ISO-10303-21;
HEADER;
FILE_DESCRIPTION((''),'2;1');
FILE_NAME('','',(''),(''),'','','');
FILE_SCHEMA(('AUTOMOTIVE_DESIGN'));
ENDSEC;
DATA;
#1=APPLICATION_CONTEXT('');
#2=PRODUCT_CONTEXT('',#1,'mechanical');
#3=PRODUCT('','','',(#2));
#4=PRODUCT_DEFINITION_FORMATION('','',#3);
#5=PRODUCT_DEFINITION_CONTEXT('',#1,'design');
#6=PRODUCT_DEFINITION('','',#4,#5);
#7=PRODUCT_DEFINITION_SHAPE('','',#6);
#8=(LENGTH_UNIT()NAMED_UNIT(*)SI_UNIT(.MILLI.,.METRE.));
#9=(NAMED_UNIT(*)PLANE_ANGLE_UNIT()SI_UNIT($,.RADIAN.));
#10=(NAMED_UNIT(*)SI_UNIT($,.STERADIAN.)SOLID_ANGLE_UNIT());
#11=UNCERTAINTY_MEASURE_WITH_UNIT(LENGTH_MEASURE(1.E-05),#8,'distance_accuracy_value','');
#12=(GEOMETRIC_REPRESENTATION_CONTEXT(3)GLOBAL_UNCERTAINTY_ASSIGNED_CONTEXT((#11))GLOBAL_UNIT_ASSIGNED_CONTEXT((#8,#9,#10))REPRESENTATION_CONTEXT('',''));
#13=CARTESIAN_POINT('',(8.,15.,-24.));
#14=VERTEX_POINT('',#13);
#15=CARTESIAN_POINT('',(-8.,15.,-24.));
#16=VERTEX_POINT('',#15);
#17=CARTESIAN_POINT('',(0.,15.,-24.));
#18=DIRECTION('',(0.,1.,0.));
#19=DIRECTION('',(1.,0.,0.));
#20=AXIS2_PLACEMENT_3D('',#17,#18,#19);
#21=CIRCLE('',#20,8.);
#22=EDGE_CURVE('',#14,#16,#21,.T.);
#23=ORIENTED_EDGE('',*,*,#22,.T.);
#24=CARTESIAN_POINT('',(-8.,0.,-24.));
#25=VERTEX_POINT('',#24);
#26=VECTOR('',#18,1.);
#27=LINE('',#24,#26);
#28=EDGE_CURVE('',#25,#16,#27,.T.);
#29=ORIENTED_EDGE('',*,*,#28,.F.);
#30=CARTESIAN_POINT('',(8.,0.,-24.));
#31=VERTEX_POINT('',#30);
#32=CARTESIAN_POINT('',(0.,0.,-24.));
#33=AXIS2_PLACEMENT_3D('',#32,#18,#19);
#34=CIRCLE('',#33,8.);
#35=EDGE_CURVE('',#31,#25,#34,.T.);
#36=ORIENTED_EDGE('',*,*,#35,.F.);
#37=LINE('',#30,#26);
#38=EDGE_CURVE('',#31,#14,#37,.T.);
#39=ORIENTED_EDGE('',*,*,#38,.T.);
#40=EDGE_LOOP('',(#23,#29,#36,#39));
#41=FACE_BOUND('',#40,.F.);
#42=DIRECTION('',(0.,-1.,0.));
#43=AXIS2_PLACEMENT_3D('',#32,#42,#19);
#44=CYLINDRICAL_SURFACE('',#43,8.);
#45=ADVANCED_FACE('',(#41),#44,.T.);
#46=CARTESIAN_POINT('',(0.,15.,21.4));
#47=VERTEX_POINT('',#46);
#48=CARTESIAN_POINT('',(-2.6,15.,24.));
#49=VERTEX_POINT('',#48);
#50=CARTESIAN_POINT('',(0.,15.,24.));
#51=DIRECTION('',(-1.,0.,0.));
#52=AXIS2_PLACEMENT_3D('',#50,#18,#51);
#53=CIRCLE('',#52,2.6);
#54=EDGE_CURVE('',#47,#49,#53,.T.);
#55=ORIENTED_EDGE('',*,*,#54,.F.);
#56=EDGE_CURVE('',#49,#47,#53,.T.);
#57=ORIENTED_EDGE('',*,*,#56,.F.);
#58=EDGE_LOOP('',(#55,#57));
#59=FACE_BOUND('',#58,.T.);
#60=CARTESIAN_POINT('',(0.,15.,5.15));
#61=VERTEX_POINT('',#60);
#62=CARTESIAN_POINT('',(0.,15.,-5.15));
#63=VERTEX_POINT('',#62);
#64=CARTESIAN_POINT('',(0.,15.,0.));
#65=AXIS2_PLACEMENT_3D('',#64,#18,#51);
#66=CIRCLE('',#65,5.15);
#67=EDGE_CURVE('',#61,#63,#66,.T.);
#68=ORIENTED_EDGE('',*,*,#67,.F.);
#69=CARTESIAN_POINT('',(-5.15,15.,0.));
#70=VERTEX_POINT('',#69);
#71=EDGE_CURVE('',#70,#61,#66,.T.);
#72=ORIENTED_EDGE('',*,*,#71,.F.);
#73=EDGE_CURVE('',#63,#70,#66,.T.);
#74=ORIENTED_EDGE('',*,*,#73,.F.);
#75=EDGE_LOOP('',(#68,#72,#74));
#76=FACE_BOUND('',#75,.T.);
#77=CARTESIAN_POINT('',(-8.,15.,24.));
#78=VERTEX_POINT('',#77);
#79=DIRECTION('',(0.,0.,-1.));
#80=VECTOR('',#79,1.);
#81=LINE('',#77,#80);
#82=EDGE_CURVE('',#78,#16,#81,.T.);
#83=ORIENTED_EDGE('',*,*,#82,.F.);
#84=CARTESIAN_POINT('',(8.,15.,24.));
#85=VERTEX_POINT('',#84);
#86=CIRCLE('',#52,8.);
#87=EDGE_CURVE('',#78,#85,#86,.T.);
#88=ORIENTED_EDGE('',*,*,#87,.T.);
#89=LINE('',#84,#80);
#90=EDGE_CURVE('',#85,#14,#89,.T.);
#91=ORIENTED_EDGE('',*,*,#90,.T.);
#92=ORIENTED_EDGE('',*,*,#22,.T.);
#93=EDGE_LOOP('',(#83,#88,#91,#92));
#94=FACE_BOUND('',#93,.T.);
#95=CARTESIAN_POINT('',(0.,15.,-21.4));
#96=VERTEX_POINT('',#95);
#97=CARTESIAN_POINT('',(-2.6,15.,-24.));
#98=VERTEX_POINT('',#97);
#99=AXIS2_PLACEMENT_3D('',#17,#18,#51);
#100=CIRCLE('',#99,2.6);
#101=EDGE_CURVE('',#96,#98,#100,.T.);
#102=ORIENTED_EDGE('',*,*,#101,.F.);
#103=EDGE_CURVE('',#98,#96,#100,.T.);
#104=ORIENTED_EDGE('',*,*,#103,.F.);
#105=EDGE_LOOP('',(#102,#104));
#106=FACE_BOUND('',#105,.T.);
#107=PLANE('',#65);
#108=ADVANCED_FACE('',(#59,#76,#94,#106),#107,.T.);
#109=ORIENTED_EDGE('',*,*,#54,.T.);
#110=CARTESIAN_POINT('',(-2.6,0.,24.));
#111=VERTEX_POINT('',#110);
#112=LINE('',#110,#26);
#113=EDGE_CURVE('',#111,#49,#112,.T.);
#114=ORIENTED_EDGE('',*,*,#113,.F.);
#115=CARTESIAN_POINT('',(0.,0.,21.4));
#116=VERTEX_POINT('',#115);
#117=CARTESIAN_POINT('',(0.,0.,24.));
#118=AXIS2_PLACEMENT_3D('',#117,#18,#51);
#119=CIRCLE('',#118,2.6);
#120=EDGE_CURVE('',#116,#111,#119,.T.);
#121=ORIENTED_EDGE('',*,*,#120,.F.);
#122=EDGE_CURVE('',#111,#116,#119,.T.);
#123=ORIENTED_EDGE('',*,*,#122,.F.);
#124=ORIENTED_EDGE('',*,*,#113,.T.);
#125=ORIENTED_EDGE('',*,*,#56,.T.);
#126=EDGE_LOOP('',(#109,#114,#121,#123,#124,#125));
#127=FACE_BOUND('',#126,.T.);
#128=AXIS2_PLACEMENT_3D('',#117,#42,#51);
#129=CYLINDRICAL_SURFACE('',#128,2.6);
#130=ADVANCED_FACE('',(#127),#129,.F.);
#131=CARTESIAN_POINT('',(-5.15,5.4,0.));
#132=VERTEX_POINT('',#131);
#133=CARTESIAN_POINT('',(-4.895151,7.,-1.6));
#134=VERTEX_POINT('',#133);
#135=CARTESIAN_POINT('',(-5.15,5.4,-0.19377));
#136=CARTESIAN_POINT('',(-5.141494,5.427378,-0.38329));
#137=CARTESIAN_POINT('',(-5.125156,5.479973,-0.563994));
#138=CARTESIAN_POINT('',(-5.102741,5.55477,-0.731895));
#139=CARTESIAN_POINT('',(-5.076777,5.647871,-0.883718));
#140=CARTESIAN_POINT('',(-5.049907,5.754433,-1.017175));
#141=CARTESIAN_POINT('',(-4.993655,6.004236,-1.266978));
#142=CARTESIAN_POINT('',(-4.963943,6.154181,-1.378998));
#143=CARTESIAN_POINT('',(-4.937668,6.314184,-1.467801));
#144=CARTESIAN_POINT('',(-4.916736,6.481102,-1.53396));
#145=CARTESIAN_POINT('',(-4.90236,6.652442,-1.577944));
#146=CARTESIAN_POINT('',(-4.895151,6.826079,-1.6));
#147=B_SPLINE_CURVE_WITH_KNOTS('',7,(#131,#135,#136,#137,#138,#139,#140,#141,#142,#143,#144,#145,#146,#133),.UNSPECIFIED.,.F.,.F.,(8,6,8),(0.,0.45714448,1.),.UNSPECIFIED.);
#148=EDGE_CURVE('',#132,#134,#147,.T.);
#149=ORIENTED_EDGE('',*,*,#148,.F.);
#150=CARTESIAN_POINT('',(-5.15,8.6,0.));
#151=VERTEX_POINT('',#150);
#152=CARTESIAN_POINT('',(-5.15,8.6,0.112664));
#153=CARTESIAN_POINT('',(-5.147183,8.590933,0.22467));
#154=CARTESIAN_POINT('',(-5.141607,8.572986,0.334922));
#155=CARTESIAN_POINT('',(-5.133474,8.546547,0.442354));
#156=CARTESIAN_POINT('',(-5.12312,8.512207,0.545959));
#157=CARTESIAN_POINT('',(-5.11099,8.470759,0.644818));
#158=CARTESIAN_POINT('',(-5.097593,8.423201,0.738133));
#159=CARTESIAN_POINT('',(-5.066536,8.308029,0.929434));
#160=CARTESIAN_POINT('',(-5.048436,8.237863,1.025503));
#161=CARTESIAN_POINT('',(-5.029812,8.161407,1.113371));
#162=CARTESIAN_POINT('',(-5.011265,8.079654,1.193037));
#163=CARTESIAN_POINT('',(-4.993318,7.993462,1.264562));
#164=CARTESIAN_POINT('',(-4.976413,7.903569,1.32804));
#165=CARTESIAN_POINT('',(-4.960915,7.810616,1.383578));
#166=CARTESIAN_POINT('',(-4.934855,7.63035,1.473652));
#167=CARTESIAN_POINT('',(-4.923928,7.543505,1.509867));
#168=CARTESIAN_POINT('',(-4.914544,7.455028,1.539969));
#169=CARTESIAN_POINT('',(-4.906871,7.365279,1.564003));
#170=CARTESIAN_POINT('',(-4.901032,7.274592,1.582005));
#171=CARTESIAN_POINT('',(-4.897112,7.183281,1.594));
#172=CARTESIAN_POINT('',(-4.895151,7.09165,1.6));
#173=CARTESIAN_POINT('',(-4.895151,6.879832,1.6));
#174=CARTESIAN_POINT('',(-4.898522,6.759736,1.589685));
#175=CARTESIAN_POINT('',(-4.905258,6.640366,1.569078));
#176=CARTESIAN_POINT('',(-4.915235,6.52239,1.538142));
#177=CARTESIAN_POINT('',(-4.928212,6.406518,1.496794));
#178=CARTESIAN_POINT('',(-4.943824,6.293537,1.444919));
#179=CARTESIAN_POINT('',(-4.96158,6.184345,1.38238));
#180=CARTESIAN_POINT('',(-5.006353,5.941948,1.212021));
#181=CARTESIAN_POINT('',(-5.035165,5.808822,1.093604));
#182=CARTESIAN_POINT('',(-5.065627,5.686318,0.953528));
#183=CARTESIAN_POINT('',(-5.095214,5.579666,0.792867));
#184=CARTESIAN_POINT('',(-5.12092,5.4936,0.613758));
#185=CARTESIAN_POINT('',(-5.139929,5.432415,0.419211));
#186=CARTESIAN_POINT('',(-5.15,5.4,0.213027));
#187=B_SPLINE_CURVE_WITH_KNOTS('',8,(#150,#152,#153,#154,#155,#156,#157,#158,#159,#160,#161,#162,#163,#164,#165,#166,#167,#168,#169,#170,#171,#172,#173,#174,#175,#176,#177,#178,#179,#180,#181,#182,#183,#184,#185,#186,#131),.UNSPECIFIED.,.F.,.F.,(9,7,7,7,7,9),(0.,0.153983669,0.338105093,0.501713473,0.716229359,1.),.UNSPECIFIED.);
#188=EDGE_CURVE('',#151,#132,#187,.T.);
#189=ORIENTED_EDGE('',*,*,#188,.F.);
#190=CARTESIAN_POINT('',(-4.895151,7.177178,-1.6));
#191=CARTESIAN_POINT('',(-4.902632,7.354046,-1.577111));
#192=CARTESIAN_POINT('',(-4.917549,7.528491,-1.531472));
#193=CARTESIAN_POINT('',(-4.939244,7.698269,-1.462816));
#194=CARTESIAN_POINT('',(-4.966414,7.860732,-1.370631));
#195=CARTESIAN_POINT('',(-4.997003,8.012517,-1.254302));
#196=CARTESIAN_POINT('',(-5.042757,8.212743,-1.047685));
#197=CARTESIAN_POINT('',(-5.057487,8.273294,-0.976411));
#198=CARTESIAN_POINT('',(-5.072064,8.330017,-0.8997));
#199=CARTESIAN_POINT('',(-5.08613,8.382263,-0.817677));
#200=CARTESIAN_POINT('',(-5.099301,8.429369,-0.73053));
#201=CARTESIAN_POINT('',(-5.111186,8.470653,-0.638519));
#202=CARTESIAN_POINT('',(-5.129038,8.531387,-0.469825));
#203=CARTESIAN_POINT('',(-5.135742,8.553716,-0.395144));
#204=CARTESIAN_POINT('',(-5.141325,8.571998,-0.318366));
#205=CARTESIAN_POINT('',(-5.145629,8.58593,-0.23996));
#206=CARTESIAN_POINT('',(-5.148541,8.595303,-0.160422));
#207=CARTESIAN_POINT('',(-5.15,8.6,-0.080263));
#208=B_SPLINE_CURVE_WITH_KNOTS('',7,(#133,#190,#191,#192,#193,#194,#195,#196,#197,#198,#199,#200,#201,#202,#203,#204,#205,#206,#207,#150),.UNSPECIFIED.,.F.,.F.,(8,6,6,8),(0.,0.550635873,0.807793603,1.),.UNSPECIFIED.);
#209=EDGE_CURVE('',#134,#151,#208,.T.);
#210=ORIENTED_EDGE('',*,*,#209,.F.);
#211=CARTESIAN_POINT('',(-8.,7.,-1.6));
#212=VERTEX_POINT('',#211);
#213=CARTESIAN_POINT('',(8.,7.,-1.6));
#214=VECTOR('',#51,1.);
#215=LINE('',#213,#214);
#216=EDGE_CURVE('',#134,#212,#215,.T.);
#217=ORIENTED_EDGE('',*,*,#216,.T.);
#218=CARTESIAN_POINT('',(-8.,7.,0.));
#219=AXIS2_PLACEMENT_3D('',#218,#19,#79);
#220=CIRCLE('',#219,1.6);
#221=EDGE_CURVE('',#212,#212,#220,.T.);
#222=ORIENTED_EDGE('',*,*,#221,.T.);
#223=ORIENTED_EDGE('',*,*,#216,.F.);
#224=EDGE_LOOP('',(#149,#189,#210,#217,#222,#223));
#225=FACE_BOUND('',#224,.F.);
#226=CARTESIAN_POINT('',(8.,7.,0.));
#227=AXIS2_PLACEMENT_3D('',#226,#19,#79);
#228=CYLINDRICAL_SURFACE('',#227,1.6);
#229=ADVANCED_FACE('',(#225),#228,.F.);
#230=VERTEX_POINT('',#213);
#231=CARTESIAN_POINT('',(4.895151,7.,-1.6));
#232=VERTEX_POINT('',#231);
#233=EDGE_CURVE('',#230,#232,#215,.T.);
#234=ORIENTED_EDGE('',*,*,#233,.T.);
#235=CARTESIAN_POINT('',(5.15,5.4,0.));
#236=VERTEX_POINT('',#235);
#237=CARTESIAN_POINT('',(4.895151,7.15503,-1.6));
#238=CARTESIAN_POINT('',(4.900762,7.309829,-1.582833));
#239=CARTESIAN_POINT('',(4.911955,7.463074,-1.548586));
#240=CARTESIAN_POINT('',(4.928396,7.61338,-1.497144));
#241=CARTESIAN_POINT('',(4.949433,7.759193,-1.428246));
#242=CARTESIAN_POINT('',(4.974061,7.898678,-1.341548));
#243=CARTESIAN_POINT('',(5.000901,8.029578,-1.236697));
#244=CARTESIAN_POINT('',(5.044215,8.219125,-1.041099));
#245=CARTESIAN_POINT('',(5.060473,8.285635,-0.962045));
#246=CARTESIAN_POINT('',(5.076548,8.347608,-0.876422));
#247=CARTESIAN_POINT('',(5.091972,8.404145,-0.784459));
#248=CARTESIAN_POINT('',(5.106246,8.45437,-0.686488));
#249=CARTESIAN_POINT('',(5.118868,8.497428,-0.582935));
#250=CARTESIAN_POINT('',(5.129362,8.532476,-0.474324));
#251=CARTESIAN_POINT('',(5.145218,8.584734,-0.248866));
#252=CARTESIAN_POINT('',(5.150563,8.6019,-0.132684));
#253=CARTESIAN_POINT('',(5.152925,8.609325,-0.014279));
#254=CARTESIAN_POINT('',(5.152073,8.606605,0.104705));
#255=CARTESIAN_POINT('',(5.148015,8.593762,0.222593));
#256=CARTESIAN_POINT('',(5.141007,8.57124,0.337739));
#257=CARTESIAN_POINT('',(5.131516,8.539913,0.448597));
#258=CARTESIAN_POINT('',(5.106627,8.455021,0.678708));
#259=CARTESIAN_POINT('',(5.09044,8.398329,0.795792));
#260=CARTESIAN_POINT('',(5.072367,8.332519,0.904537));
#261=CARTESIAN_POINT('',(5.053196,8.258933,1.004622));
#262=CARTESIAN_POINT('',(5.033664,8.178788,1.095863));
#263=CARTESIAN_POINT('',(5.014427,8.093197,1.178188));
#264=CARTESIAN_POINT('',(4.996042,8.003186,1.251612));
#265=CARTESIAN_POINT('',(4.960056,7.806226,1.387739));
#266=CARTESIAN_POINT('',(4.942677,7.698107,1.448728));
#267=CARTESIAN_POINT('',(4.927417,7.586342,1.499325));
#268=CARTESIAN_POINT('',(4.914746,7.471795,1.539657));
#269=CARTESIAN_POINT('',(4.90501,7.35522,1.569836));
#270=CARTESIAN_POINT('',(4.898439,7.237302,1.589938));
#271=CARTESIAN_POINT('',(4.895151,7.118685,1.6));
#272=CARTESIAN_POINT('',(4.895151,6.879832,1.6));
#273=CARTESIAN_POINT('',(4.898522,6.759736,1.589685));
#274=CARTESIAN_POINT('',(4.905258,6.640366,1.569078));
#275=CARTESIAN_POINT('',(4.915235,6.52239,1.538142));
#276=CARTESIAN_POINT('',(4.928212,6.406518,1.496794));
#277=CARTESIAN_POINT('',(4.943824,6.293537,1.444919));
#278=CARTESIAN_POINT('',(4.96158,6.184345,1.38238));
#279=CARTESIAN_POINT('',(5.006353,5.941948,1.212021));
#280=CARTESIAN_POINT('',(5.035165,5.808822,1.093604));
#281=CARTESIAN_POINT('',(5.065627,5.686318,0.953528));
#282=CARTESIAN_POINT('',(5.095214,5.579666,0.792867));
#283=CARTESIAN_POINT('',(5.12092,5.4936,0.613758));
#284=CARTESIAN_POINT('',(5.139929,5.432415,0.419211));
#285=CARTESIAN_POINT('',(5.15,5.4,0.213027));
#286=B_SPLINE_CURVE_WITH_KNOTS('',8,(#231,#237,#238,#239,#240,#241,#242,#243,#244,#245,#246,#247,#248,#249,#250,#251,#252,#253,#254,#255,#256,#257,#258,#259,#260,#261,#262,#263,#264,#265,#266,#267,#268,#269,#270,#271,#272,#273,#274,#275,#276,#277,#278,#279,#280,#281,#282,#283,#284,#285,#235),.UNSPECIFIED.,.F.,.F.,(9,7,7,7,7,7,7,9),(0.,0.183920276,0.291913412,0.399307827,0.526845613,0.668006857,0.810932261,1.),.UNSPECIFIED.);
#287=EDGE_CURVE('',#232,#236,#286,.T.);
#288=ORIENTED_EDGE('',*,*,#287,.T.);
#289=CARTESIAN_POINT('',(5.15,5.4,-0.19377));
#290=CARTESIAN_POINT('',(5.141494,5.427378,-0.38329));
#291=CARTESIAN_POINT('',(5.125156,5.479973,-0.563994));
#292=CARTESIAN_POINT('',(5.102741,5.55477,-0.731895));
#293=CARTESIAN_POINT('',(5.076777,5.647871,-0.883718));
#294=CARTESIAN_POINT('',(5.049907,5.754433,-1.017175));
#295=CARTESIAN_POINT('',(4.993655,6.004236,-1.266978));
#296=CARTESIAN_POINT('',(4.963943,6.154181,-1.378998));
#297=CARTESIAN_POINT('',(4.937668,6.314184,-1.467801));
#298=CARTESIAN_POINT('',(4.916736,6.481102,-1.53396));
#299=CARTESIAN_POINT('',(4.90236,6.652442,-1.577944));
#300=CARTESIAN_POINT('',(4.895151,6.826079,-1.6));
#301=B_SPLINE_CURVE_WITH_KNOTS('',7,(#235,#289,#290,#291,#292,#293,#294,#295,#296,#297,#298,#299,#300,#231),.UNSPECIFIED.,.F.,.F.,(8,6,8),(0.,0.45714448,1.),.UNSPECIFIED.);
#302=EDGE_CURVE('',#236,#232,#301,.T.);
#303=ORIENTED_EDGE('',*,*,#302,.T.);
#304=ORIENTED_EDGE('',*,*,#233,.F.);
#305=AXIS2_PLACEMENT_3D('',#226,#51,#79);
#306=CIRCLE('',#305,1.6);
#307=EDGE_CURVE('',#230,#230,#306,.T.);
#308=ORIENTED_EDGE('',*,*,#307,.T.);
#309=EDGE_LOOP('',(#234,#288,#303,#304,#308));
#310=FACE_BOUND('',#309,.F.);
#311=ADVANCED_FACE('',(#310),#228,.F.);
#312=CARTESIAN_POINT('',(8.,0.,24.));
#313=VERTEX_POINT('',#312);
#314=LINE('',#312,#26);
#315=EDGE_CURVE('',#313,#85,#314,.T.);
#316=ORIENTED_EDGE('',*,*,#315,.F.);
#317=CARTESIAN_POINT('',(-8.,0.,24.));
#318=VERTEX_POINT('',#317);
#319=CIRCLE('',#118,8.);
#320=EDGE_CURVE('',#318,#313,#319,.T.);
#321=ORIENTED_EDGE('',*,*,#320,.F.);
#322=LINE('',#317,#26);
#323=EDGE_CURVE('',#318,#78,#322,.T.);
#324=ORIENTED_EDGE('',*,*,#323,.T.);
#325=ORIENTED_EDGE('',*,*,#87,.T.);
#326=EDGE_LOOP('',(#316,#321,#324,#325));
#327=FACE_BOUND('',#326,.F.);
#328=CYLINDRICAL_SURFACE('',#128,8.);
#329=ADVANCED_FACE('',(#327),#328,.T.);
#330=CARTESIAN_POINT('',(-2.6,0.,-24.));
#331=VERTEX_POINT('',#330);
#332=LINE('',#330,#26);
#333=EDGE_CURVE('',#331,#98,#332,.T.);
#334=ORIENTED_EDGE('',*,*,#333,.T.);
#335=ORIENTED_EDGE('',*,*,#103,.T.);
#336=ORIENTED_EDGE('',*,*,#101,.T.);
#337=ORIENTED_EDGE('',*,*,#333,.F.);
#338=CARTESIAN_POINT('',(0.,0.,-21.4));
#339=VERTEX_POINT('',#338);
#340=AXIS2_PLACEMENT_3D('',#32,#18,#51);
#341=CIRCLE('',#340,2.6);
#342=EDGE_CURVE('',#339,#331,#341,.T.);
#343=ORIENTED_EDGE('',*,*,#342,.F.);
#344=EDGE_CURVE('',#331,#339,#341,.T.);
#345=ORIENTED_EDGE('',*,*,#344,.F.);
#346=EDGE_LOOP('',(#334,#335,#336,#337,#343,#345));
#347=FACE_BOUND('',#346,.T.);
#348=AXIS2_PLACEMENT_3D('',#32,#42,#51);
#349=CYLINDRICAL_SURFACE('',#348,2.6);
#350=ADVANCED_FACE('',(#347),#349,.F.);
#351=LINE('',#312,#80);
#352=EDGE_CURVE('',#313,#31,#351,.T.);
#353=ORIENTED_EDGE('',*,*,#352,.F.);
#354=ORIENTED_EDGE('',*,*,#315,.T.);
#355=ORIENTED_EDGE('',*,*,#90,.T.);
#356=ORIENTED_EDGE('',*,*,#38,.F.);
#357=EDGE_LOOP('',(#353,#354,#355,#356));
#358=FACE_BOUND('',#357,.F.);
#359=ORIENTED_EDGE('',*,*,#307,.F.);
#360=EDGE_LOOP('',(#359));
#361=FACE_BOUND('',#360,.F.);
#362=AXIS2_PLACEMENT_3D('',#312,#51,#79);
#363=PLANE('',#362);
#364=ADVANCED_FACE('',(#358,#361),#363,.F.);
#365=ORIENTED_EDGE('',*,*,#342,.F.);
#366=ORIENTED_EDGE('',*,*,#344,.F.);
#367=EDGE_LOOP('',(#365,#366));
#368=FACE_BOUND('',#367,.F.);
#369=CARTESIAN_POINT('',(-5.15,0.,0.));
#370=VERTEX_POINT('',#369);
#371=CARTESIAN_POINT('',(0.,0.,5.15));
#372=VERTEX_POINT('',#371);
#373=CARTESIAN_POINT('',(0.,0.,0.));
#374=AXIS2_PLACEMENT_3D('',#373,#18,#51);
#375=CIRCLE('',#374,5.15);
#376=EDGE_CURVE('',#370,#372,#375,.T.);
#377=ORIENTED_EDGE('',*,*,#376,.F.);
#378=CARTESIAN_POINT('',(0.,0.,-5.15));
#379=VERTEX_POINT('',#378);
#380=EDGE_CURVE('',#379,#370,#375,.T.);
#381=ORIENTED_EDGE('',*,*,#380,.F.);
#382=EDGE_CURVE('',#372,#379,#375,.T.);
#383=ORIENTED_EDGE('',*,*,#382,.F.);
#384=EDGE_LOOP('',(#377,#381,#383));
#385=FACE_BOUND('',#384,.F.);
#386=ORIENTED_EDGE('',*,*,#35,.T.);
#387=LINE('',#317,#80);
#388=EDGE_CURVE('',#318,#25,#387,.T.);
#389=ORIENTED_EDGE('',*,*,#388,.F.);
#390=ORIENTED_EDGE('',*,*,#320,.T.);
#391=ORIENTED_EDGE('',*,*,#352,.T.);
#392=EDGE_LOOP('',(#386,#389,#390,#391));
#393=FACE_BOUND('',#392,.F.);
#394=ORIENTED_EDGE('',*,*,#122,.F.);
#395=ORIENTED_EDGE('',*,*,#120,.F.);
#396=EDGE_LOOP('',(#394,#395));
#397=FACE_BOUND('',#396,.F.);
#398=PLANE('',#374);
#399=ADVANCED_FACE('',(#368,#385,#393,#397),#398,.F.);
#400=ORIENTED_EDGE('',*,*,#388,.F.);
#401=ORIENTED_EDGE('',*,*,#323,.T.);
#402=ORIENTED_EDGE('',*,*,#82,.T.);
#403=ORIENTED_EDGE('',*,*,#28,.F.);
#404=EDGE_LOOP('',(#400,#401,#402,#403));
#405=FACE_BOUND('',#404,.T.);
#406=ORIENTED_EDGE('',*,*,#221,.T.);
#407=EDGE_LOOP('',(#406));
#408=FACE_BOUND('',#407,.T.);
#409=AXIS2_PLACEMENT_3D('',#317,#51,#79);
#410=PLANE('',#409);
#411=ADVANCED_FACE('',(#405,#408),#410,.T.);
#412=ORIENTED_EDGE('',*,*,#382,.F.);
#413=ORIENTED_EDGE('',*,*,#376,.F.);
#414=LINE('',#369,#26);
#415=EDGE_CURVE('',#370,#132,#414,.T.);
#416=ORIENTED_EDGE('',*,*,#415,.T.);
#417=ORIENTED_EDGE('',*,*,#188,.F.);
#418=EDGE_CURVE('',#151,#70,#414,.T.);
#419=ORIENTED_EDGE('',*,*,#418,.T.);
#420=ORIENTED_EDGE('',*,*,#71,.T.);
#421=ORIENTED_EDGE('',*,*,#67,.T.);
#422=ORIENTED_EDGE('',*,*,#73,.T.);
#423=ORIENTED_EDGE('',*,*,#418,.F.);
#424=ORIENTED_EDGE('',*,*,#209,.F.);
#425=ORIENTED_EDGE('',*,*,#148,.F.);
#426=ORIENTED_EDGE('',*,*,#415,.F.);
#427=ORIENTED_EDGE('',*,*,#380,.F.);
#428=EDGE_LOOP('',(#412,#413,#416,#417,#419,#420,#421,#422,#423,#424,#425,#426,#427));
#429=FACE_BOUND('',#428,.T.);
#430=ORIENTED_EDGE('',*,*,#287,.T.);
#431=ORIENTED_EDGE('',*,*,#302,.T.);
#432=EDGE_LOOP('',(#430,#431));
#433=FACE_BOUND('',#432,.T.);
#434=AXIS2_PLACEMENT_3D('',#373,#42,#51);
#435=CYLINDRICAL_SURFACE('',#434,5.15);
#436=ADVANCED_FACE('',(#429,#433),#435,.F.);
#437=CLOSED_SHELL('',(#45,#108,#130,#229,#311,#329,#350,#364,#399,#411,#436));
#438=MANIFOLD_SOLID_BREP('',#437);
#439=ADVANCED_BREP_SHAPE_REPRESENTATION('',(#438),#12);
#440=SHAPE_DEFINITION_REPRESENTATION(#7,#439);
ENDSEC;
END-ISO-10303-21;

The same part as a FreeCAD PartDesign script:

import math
import FreeCAD as App
import Part
import Sketcher
from FreeCAD import Vector
Q = App.Units.Quantity

doc = App.newDocument("Part")
body = doc.addObject("PartDesign::Body", "Body")

sketch1 = doc.addObject("Sketcher::SketchObject", "Sketch")
body.addObject(sketch1)
sketch1.AttachmentSupport = (doc.XZ_Plane, [""])
sketch1.MapMode = "FlatFace"
sketch1.addGeometry([
    Part.LineSegment(Vector(-8, -24, 0), Vector(-8, 24, 0)),
    Part.ArcOfCircle(Part.Circle(Vector(0, 24, 0), Vector(0, 0, 1), 8), math.radians(0), math.radians(180)),
    Part.LineSegment(Vector(8, 24, 0), Vector(8, -24, 0)),
    Part.ArcOfCircle(Part.Circle(Vector(0, -24, 0), Vector(0, 0, 1), 8), math.radians(180), math.radians(360)),
    Part.Circle(Vector(0, -24, 0), Vector(0, 0, 1), 2.6),
    Part.ArcOfCircle(Part.Circle(Vector(0, 0, 0), Vector(0, 0, 1), 5.2), math.radians(-90), math.radians(90)),
    Part.ArcOfCircle(Part.Circle(Vector(0, 0, 0), Vector(0, 0, 1), 5.2), math.radians(90), math.radians(270)),
    Part.Circle(Vector(0, 24, 0), Vector(0, 0, 1), 2.6),
], False)
sketch1.addConstraint([
    Sketcher.Constraint("Tangent", 0, 2, 1, 2),
    Sketcher.Constraint("Tangent", 1, 1, 2, 1),
    Sketcher.Constraint("Tangent", 2, 2, 3, 2),
    Sketcher.Constraint("Tangent", 3, 1, 0, 1),
    Sketcher.Constraint("Tangent", 5, 1, 6, 2),
    Sketcher.Constraint("Coincident", 6, 1, 5, 2),
    Sketcher.Constraint("Vertical", 0),
    Sketcher.Constraint("Vertical", 2),
    Sketcher.Constraint("Coincident", 5, 3, -1, 1),
    Sketcher.Constraint("Coincident", 4, 3, 3, 3),
    Sketcher.Constraint("Coincident", 7, 3, 1, 3),
    Sketcher.Constraint("Equal", 4, 7),
    Sketcher.Constraint("Symmetric", 1, 3, 3, 3, -1, 1),
    Sketcher.Constraint("PointOnObject", 5, 1, -2),
    Sketcher.Constraint("PointOnObject", 6, 1, -2),
    Sketcher.Constraint("Radius", 1, Q("8 mm")),
    Sketcher.Constraint("Diameter", 4, Q("5.2 mm")),
    Sketcher.Constraint("Radius", 5, Q("5.15 mm")),
    Sketcher.Constraint("DistanceY", -1, 1, 1, 3, Q("24 mm")),
])
pad1 = doc.addObject("PartDesign::Pad", "Pad")
body.addObject(pad1)
pad1.Profile = sketch1
pad1.Length = 15
pad1.Reversed = True

sketch2 = doc.addObject("Sketcher::SketchObject", "Sketch001")
body.addObject(sketch2)
sketch2.AttachmentSupport = (doc.YZ_Plane, [""])
sketch2.MapMode = "FlatFace"
sketch2.AttachmentOffset = App.Placement(Vector(0, 0, 8), App.Rotation())
sketch2.addGeometry(Part.Circle(Vector(7, 0, 0), Vector(0, 0, 1), 1.6), False)
sketch2.addConstraint([
    Sketcher.Constraint("PointOnObject", 0, 3, -1),
    Sketcher.Constraint("Diameter", 0, Q("3.2 mm")),
    Sketcher.Constraint("DistanceX", -1, 1, 0, 3, Q("7 mm")),
])
pocket1 = doc.addObject("PartDesign::Pocket", "Pocket")
body.addObject(pocket1)
pocket1.Profile = sketch2
pocket1.Length = 30

doc.recompute()
